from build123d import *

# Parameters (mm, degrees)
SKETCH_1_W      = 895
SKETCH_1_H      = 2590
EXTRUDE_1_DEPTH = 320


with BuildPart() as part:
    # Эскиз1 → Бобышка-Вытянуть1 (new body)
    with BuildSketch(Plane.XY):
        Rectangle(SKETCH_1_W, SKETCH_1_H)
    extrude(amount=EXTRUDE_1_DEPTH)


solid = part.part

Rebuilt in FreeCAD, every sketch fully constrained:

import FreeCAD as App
import Part
import Sketcher
from FreeCAD import Vector


def add_polygon(sketch, points):
    """Adds a closed chain of lines whose ends are joined by coincident constraints."""
    first, n = sketch.GeometryCount, len(points)
    for a, b in zip(points, points[1:] + points[:1]):
        sketch.addGeometry(Part.LineSegment(App.Vector(*a, 0), App.Vector(*b, 0)), False)
    for i in range(n):
        sketch.addConstraint(Sketcher.Constraint("Coincident", first + i, 2, first + (i + 1) % n, 1))

doc = App.newDocument("Part")
params = doc.addObject("Spreadsheet::Sheet", "Params")
for row, (alias, value) in enumerate([
    ("sketch1_width", "895 mm"),
    ("sketch1_height", "2590 mm"),
    ("pad1_length", "320 mm"),
], start=1):
    params.set(f"A{row}", alias)
    params.set(f"B{row}", "=" + value)
    params.setAlias(f"B{row}", alias)

body = doc.addObject("PartDesign::Body", "Body")

# Sketch on XY plane
sketch1 = doc.addObject("Sketcher::SketchObject", "Sketch")
body.addObject(sketch1)
sketch1.AttachmentSupport = (doc.XY_Plane, [""])
sketch1.MapMode = "FlatFace"
add_polygon(sketch1, [(-447.5, 1295), (-447.5, -1295), (447.5, -1295), (447.5, 1295)])  # lines 0-3
sketch1.addConstraint(Sketcher.Constraint("Vertical", 0))
sketch1.addConstraint(Sketcher.Constraint("Horizontal", 1))
sketch1.addConstraint(Sketcher.Constraint("Vertical", 2))
sketch1.addConstraint(Sketcher.Constraint("Horizontal", 3))
sketch1.addConstraint(Sketcher.Constraint("Symmetric", 0, 2, 2, 2, -1, 1))
sketch1.addConstraint(Sketcher.Constraint("DistanceX", 1, 1, 1, 2, 895.0))
sketch1.addConstraint(Sketcher.Constraint("DistanceY", 0, 2, 0, 1, 2590.0))
sketch1.setExpression("Constraints[9]", "Params.sketch1_width")
sketch1.setExpression("Constraints[10]", "Params.sketch1_height")
pad1 = doc.addObject("PartDesign::Pad", "Pad")
body.addObject(pad1)
pad1.Profile = sketch1
pad1.setExpression("Length", "Params.pad1_length")

doc.recompute()
